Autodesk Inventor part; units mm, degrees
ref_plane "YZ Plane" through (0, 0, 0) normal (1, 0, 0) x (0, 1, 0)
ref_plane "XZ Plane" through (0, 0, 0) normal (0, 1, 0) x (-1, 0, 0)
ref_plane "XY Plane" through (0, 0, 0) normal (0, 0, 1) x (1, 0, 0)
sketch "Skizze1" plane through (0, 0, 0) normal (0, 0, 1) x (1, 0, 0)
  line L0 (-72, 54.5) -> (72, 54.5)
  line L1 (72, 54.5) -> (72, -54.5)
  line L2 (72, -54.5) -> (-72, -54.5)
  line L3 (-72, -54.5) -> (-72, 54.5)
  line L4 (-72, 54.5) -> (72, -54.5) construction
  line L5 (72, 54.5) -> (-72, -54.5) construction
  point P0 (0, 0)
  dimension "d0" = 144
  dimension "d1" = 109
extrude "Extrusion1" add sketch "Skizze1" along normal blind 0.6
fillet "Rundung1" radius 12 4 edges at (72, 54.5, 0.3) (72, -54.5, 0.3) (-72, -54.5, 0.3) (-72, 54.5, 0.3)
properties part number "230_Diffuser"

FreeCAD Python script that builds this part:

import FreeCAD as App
import Part
import Sketcher
from FreeCAD import Vector


def edges_at(feature, points):
    """Names of the edges that pass closest to the given points."""
    edges = feature.Shape.Edges
    near = lambda p: min(range(len(edges)), key=lambda i: edges[i].distToShape(Part.Vertex(*p))[0])
    return sorted({f"Edge{near(p) + 1}" for p in points})


def add_polygon(sketch, points):
    """Adds a closed chain of lines whose ends are joined by coincident constraints."""
    first, n = sketch.GeometryCount, len(points)
    for a, b in zip(points, points[1:] + points[:1]):
        sketch.addGeometry(Part.LineSegment(App.Vector(*a, 0), App.Vector(*b, 0)), False)
    for i in range(n):
        sketch.addConstraint(Sketcher.Constraint("Coincident", first + i, 2, first + (i + 1) % n, 1))

doc = App.newDocument("Part")
body = doc.addObject("PartDesign::Body", "Body")

# Sketch on XY plane
sketch1 = body.newObject("Sketcher::SketchObject", "Sketch")
sketch1.AttachmentSupport = (doc.getObject("XY_Plane"), [""])
sketch1.MapMode = "FlatFace"
add_polygon(sketch1, [(72, 54), (-72, 54), (-72, -54), (72, -54)])  # lines 0-3
sketch1.addConstraint([
    Sketcher.Constraint("Horizontal", 0),
    Sketcher.Constraint("Vertical", 1),
    Sketcher.Constraint("Horizontal", 2),
    Sketcher.Constraint("Vertical", 3),
    Sketcher.Constraint("Symmetric", 0, 2, 2, 2, -1, 1),
    Sketcher.Constraint("DistanceX", 0, 2, 0, 1, 144.0),
    Sketcher.Constraint("DistanceY", 1, 2, 1, 1, 109.0),
])
pad1 = body.newObject("PartDesign::Pad", "Pad")
pad1.Profile = sketch1
pad1.Length = 0.6
doc.recompute()

fillet = body.newObject("PartDesign::Fillet", "Fillet")
fillet.Base = (pad1, edges_at(pad1, [
    (72, 54.5, 0.3),
    (72, -54.5, 0.3),
    (-72, -54.5, 0.3),
    (-72, 54.5, 0.3),
]))
fillet.Radius = 12

doc.recompute()
